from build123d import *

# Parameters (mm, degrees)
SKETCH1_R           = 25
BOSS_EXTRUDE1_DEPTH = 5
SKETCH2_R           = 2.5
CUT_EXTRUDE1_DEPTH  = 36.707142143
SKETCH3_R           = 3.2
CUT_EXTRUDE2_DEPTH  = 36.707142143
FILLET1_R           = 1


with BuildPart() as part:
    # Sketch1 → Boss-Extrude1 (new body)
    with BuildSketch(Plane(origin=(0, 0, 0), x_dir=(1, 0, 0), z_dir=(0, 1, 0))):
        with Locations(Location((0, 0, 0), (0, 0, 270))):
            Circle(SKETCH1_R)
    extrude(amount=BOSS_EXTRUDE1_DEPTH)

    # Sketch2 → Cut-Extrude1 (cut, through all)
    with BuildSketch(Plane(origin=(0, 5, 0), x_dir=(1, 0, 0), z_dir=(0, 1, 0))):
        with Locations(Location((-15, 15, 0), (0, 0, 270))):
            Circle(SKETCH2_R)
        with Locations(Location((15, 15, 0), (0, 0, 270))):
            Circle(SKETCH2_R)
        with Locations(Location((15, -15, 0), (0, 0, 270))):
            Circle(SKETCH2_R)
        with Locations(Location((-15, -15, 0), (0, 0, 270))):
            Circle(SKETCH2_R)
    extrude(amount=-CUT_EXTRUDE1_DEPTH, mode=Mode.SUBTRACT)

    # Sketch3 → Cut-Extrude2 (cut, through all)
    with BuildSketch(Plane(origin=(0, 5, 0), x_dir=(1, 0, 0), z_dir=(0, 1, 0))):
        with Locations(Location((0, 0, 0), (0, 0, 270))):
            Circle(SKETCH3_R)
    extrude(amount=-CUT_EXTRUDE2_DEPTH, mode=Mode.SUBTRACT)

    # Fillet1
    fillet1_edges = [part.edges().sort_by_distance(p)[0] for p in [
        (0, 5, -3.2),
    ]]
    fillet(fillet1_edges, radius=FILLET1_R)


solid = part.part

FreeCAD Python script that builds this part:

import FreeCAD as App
import Part
import Sketcher
from FreeCAD import Vector


def edges_at(feature, points):
    """Names of the edges that pass closest to the given points."""
    edges = feature.Shape.Edges
    near = lambda p: min(range(len(edges)), key=lambda i: edges[i].distToShape(Part.Vertex(*p))[0])
    return sorted({f"Edge{near(p) + 1}" for p in points})

doc = App.newDocument("Part")
body = doc.addObject("PartDesign::Body", "Body")

# Sketch on XZ plane
sketch1 = body.newObject("Sketcher::SketchObject", "Sketch")
sketch1.AttachmentSupport = (doc.getObject("XZ_Plane"), [""])
sketch1.MapMode = "FlatFace"
sketch1.addGeometry(Part.Circle(Vector(0, 0, 0), Vector(0, 0, 1), 25), False)
sketch1.addConstraint([
    Sketcher.Constraint("Coincident", 0, 3, -1, 1),
    Sketcher.Constraint("Diameter", 0, 50.0),
])
pad1 = body.newObject("PartDesign::Pad", "Pad")
pad1.Profile = sketch1
pad1.Length = 5
pad1.Reversed = True

# Sketch on XZ plane
sketch2 = body.newObject("Sketcher::SketchObject", "Sketch001")
sketch2.AttachmentSupport = (doc.getObject("XZ_Plane"), [""])
sketch2.MapMode = "FlatFace"
sketch2.AttachmentOffset = App.Placement(Vector(0, 0, -5), App.Rotation())
sketch2.addGeometry([
    Part.Circle(Vector(-15, -15, 0), Vector(0, 0, 1), 2.5),
    Part.Circle(Vector(15, -15, 0), Vector(0, 0, 1), 2.5),
    Part.Circle(Vector(15, 15, 0), Vector(0, 0, 1), 2.5),
    Part.Circle(Vector(-15, 15, 0), Vector(0, 0, 1), 2.5),
], False)
sketch2.addConstraint([
    Sketcher.Constraint("Equal", 0, 1),
    Sketcher.Constraint("Equal", 1, 2),
    Sketcher.Constraint("Equal", 2, 3),
    Sketcher.Constraint("Symmetric", 0, 3, 2, 3, -1, 1),
    Sketcher.Constraint("Symmetric", 1, 3, 3, 3, -1, 1),
    Sketcher.Constraint("Symmetric", 0, 3, 1, 3, -2),
    Sketcher.Constraint("Diameter", 0, 5.0),
    Sketcher.Constraint("DistanceX", 0, 3, -1, 1, 15.0),
    Sketcher.Constraint("DistanceY", 0, 3, -1, 1, 15.0),
])
pocket1 = body.newObject("PartDesign::Pocket", "Pocket")
pocket1.Profile = sketch2
pocket1.Type = "ThroughAll"
pocket1.Reversed = True

# Sketch on XZ plane
sketch3 = body.newObject("Sketcher::SketchObject", "Sketch002")
sketch3.AttachmentSupport = (doc.getObject("XZ_Plane"), [""])
sketch3.MapMode = "FlatFace"
sketch3.AttachmentOffset = App.Placement(Vector(0, 0, -5), App.Rotation())
sketch3.addGeometry(Part.Circle(Vector(0, 0, 0), Vector(0, 0, 1), 3.2), False)
sketch3.addConstraint([
    Sketcher.Constraint("Coincident", 0, 3, -1, 1),
    Sketcher.Constraint("Diameter", 0, 6.4),
])
pocket2 = body.newObject("PartDesign::Pocket", "Pocket001")
pocket2.Profile = sketch3
pocket2.Type = "ThroughAll"
pocket2.Reversed = True
doc.recompute()

fillet = body.newObject("PartDesign::Fillet", "Fillet")
fillet.Base = (pocket2, edges_at(pocket2, [(0, 5, -3.2)]))
fillet.Radius = 1

doc.recompute()
